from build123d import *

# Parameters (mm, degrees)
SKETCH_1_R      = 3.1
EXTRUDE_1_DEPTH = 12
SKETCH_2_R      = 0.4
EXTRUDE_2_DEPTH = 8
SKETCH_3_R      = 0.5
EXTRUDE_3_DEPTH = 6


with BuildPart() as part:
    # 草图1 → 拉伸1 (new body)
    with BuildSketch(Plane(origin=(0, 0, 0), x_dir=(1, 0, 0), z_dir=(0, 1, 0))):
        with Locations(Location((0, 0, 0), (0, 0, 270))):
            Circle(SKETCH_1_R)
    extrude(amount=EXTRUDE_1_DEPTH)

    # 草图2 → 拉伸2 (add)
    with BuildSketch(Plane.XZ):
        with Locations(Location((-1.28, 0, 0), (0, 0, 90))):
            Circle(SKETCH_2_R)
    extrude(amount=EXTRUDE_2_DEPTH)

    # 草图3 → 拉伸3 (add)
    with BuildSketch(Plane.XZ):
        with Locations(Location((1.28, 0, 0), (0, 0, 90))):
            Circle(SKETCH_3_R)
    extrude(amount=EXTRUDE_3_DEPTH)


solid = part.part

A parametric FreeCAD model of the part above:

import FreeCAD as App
import Part
import Sketcher

V = App.Vector
Q = App.Units.Quantity

doc = App.newDocument("Part")
body = doc.addObject("PartDesign::Body", "Body")

sketch1 = body.newObject("Sketcher::SketchObject", "Sketch")
sketch1.AttachmentSupport = (doc.getObject("XZ_Plane"), [""])
sketch1.MapMode = "FlatFace"
sketch1.addGeometry(Part.Circle(V(0, 0, 0), V(0, 0, 1), 3.1), False)
sketch1.addConstraint([
    Sketcher.Constraint("Coincident", 0, 3, -1, 1),
    Sketcher.Constraint("Diameter", 0, Q("6.2 mm")),
])
pad1 = body.newObject("PartDesign::Pad", "Pad")
pad1.Profile = sketch1
pad1.Length = 12
pad1.Reversed = True

sketch2 = body.newObject("Sketcher::SketchObject", "Sketch001")
sketch2.AttachmentSupport = (doc.getObject("XZ_Plane"), [""])
sketch2.MapMode = "FlatFace"
sketch2.addGeometry(Part.Circle(V(-1.28, 0, 0), V(0, 0, 1), 0.4), False)
sketch2.addConstraint([
    Sketcher.Constraint("PointOnObject", 0, 3, -1),
    Sketcher.Constraint("Diameter", 0, Q("0.8 mm")),
    Sketcher.Constraint("DistanceX", 0, 3, -1, 1, Q("1.28 mm")),
])
pad2 = body.newObject("PartDesign::Pad", "Pad001")
pad2.Profile = sketch2
pad2.Length = 8

sketch3 = body.newObject("Sketcher::SketchObject", "Sketch002")
sketch3.AttachmentSupport = (doc.getObject("XZ_Plane"), [""])
sketch3.MapMode = "FlatFace"
sketch3.addGeometry(Part.Circle(V(1.3, 0, 0), V(0, 0, 1), 0.5), False)
sketch3.addConstraint([
    Sketcher.Constraint("PointOnObject", 0, 3, -1),
    Sketcher.Constraint("Diameter", 0, Q("1 mm")),
    Sketcher.Constraint("DistanceX", -1, 1, 0, 3, Q("1.28 mm")),
])
pad3 = body.newObject("PartDesign::Pad", "Pad002")
pad3.Profile = sketch3
pad3.Length = 6

doc.recompute()
